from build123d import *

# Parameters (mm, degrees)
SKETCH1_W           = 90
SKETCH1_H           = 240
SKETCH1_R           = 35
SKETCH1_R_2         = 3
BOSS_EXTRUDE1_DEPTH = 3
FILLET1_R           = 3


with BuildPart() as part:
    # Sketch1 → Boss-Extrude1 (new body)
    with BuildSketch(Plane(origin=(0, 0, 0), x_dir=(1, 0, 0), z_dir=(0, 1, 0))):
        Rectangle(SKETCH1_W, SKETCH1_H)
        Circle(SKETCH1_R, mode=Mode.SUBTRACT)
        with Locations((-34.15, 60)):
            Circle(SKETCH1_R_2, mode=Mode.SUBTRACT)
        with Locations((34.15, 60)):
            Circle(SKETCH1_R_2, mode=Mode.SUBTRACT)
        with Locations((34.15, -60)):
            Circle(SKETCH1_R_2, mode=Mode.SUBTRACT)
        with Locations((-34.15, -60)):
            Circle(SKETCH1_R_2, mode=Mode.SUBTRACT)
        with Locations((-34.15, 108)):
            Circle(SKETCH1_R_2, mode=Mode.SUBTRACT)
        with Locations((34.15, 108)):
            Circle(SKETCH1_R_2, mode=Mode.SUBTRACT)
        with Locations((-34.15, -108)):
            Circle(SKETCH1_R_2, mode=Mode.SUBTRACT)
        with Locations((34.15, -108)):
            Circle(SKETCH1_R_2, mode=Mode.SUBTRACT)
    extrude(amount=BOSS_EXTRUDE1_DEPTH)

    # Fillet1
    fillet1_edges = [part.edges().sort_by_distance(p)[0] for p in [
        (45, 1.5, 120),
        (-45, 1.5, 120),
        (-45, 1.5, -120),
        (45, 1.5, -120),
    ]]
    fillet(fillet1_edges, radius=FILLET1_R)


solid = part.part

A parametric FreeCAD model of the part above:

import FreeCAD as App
import Part
import Sketcher

V = App.Vector


def edges_at(feature, points):
    """Names of the edges that pass closest to the given points."""
    edges = feature.Shape.Edges
    near = lambda p: min(range(len(edges)), key=lambda i: edges[i].distToShape(Part.Vertex(*p))[0])
    return sorted({f"Edge{near(p) + 1}" for p in points})


def add_polygon(sketch, points):
    """Adds a closed chain of lines whose ends are joined by coincident constraints."""
    first, n = sketch.GeometryCount, len(points)
    for a, b in zip(points, points[1:] + points[:1]):
        sketch.addGeometry(Part.LineSegment(App.Vector(*a, 0), App.Vector(*b, 0)), False)
    for i in range(n):
        sketch.addConstraint(Sketcher.Constraint("Coincident", first + i, 2, first + (i + 1) % n, 1))

doc = App.newDocument("Part")
body = doc.addObject("PartDesign::Body", "Body")

# Sketch on XZ plane
sketch1 = body.newObject("Sketcher::SketchObject", "Sketch")
sketch1.AttachmentSupport = (doc.getObject("XZ_Plane"), [""])
sketch1.MapMode = "FlatFace"
add_polygon(sketch1, [(-45, -120), (-45, 120), (45, 120), (45, -120)])  # lines 0-3
sketch1.addGeometry(Part.Circle(V(-34.15, 108, 0), V(0, 0, 1), 3), False)  # 4
sketch1.addGeometry(Part.Circle(V(-34.15, 60, 0), V(0, 0, 1), 3), False)  # 5
sketch1.addGeometry(Part.Circle(V(34.15, 108, 0), V(0, 0, 1), 3), False)  # 6
sketch1.addGeometry(Part.Circle(V(34.15, 60, 0), V(0, 0, 1), 3), False)  # 7
sketch1.addGeometry(Part.Circle(V(-34.15, -60, 0), V(0, 0, 1), 3), False)  # 8
sketch1.addGeometry(Part.Circle(V(-34.15, -108, 0), V(0, 0, 1), 3), False)  # 9
sketch1.addGeometry(Part.Circle(V(0, 0, 0), V(0, 0, 1), 35), False)  # 10
sketch1.addGeometry(Part.Circle(V(34.15, -60, 0), V(0, 0, 1), 3), False)  # 11
sketch1.addGeometry(Part.Circle(V(34.15, -108, 0), V(0, 0, 1), 3), False)  # 12
sketch1.addConstraint([
    Sketcher.Constraint("Vertical", 0),
    Sketcher.Constraint("Horizontal", 1),
    Sketcher.Constraint("Vertical", 2),
    Sketcher.Constraint("Horizontal", 3),
    Sketcher.Constraint("Coincident", 10, 3, -1, 1),
    Sketcher.Constraint("Equal", 4, 5),
    Sketcher.Constraint("Equal", 5, 6),
    Sketcher.Constraint("Equal", 6, 7),
    Sketcher.Constraint("Equal", 7, 8),
    Sketcher.Constraint("Equal", 8, 9),
    Sketcher.Constraint("Equal", 9, 11),
    Sketcher.Constraint("Equal", 11, 12),
    Sketcher.Constraint("Symmetric", 7, 3, 8, 3, -1, 1),
    Sketcher.Constraint("Symmetric", 6, 3, 9, 3, -1, 1),
    Sketcher.Constraint("Symmetric", 5, 3, 11, 3, -1, 1),
    Sketcher.Constraint("Symmetric", 4, 3, 12, 3, -1, 1),
    Sketcher.Constraint("Symmetric", 0, 2, 2, 2, -1, 1),
    Sketcher.Constraint("Symmetric", 4, 3, 6, 3, -2),
    Sketcher.Constraint("Symmetric", 5, 3, 7, 3, -2),
    Sketcher.Constraint("Vertical", 4, 3, 5, 3),
    Sketcher.Constraint("Diameter", 4, 6.0),
    Sketcher.Constraint("Diameter", 10, 70.0),
    Sketcher.Constraint("DistanceX", 1, 1, 1, 2, 90.0),
    Sketcher.Constraint("DistanceY", 0, 1, 0, 2, 240.0),
    Sketcher.Constraint("DistanceY", -1, 1, 4, 3, 108.0),
    Sketcher.Constraint("DistanceY", -1, 1, 5, 3, 60.0),
    Sketcher.Constraint("DistanceX", 4, 3, 6, 3, 68.3),
])
pad1 = body.newObject("PartDesign::Pad", "Pad")
pad1.Profile = sketch1
pad1.Length = 3
pad1.Reversed = True
doc.recompute()

fillet = body.newObject("PartDesign::Fillet", "Fillet")
fillet.Base = (pad1, edges_at(pad1, [
    (45, 1.5, 120),
    (-45, 1.5, 120),
    (-45, 1.5, -120),
    (45, 1.5, -120),
]))
fillet.Radius = 3

doc.recompute()
